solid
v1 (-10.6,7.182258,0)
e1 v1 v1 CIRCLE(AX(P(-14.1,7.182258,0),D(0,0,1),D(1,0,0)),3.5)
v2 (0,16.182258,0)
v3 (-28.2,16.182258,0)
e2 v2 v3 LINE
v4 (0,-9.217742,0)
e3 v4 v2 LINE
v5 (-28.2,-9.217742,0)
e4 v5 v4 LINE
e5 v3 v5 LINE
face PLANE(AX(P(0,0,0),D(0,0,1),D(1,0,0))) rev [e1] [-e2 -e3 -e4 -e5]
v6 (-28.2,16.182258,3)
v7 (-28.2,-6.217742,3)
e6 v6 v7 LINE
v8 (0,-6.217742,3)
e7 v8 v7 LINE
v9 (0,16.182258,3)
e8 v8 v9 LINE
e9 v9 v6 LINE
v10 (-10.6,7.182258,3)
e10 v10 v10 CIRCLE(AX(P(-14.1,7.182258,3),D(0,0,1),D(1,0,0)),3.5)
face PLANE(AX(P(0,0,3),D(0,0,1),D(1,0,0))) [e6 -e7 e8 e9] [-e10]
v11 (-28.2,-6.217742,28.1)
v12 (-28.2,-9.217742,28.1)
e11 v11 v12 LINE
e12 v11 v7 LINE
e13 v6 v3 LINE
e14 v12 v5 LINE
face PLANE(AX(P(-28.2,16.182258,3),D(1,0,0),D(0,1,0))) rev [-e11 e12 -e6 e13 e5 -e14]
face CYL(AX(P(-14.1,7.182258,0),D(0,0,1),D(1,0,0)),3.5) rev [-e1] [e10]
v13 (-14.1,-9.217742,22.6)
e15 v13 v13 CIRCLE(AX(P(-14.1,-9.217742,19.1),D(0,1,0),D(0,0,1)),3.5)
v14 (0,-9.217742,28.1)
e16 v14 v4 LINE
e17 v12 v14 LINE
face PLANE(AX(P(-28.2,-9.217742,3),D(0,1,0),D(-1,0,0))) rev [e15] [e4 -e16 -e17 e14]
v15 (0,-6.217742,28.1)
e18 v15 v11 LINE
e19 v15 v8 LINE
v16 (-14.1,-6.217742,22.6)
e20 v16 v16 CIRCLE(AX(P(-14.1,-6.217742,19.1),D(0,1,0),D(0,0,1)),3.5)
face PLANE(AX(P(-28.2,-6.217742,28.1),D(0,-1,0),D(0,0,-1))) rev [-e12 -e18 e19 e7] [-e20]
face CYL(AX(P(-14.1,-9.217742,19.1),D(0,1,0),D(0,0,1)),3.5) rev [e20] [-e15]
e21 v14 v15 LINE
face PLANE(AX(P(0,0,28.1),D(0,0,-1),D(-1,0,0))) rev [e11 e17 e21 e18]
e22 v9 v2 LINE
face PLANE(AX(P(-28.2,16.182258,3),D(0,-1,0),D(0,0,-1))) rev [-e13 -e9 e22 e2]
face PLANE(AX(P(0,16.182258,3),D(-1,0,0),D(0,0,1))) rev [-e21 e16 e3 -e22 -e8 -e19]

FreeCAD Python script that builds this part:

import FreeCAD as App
import Part
import Sketcher
from FreeCAD import Vector
Q = App.Units.Quantity

doc = App.newDocument("Part")
body = doc.addObject("PartDesign::Body", "Body")

# Sketch on XY plane
sketch1 = doc.addObject("Sketcher::SketchObject", "Sketch")
body.addObject(sketch1)
sketch1.AttachmentSupport = (doc.XY_Plane, [""])
sketch1.MapMode = "FlatFace"
sketch1.addGeometry([
    Part.LineSegment(Vector(-28, 16, 0), Vector(-28, -9, 0)),
    Part.LineSegment(Vector(-28, -9, 0), Vector(0, -9, 0)),
    Part.LineSegment(Vector(0, -9, 0), Vector(0, 16, 0)),
    Part.LineSegment(Vector(0, 16, 0), Vector(-28, 16, 0)),
], False)
sketch1.addConstraint([
    Sketcher.Constraint("Coincident", 0, 2, 1, 1),
    Sketcher.Constraint("Coincident", 1, 2, 2, 1),
    Sketcher.Constraint("Coincident", 2, 2, 3, 1),
    Sketcher.Constraint("Coincident", 3, 2, 0, 1),
    Sketcher.Constraint("Vertical", 0),
    Sketcher.Constraint("Horizontal", 1),
    Sketcher.Constraint("Vertical", 2),
    Sketcher.Constraint("Horizontal", 3),
    Sketcher.Constraint("PointOnObject", 1, 2, -2),
    Sketcher.Constraint("DistanceX", 1, 1, 1, 2, Q("28.2 mm")),
    Sketcher.Constraint("DistanceY", 0, 2, 0, 1, Q("25.4 mm")),
    Sketcher.Constraint("DistanceY", 0, 2, -1, 1, Q("9.217742 mm")),
])
pad1 = doc.addObject("PartDesign::Pad", "Pad")
body.addObject(pad1)
pad1.Profile = sketch1
pad1.Length = 3

# Sketch on XY plane
sketch2 = doc.addObject("Sketcher::SketchObject", "Sketch001")
body.addObject(sketch2)
sketch2.AttachmentSupport = (doc.XY_Plane, [""])
sketch2.MapMode = "FlatFace"
sketch2.AttachmentOffset = App.Placement(Vector(0, 0, 3), App.Rotation())
sketch2.addGeometry([
    Part.LineSegment(Vector(-28.2, -6.2, 0), Vector(-28.2, -9.2, 0)),
    Part.LineSegment(Vector(-28.2, -9.2, 0), Vector(0, -9.2, 0)),
    Part.LineSegment(Vector(0, -9.2, 0), Vector(0, -6.2, 0)),
    Part.LineSegment(Vector(0, -6.2, 0), Vector(-28.2, -6.2, 0)),
], False)
sketch2.addConstraint([
    Sketcher.Constraint("Coincident", 0, 2, 1, 1),
    Sketcher.Constraint("Coincident", 1, 2, 2, 1),
    Sketcher.Constraint("Coincident", 2, 2, 3, 1),
    Sketcher.Constraint("Coincident", 3, 2, 0, 1),
    Sketcher.Constraint("Vertical", 0),
    Sketcher.Constraint("Horizontal", 1),
    Sketcher.Constraint("Vertical", 2),
    Sketcher.Constraint("Horizontal", 3),
    Sketcher.Constraint("PointOnObject", 1, 2, -2),
    Sketcher.Constraint("DistanceY", 0, 2, 0, 1, Q("3 mm")),
    Sketcher.Constraint("DistanceX", 1, 1, 1, 2, Q("28.2 mm")),
    Sketcher.Constraint("DistanceY", 0, 2, -1, 1, Q("9.217742 mm")),
])
pad2 = doc.addObject("PartDesign::Pad", "Pad001")
body.addObject(pad2)
pad2.Profile = sketch2
pad2.Length = 25.1

# Sketch on XZ plane
sketch3 = doc.addObject("Sketcher::SketchObject", "Sketch002")
body.addObject(sketch3)
sketch3.AttachmentSupport = (doc.XZ_Plane, [""])
sketch3.MapMode = "FlatFace"
sketch3.AttachmentOffset = App.Placement(Vector(0, 0, 6.217742), App.Rotation())
sketch3.addGeometry(Part.Circle(Vector(-14.1, 19.1, 0), Vector(0, 0, 1), 3.5), False)
sketch3.addConstraint([
    Sketcher.Constraint("Diameter", 0, Q("7 mm")),
    Sketcher.Constraint("DistanceX", 0, 3, -1, 1, Q("14.1 mm")),
    Sketcher.Constraint("DistanceY", -1, 1, 0, 3, Q("19.1 mm")),
])
pocket1 = doc.addObject("PartDesign::Pocket", "Pocket")
body.addObject(pocket1)
pocket1.Profile = sketch3
pocket1.Length = 3
pocket1.Reversed = True

# Sketch on XY plane
sketch4 = doc.addObject("Sketcher::SketchObject", "Sketch003")
body.addObject(sketch4)
sketch4.AttachmentSupport = (doc.XY_Plane, [""])
sketch4.MapMode = "FlatFace"
sketch4.AttachmentOffset = App.Placement(Vector(0, 0, 3), App.Rotation())
sketch4.addGeometry(Part.Circle(Vector(-14.1, 7.2, 0), Vector(0, 0, 1), 3.5), False)
sketch4.addConstraint([
    Sketcher.Constraint("Diameter", 0, Q("7 mm")),
    Sketcher.Constraint("DistanceX", 0, 3, -1, 1, Q("14.1 mm")),
    Sketcher.Constraint("DistanceY", -1, 1, 0, 3, Q("7.182258 mm")),
])
pocket2 = doc.addObject("PartDesign::Pocket", "Pocket001")
body.addObject(pocket2)
pocket2.Profile = sketch4
pocket2.Length = 3

doc.recompute()
